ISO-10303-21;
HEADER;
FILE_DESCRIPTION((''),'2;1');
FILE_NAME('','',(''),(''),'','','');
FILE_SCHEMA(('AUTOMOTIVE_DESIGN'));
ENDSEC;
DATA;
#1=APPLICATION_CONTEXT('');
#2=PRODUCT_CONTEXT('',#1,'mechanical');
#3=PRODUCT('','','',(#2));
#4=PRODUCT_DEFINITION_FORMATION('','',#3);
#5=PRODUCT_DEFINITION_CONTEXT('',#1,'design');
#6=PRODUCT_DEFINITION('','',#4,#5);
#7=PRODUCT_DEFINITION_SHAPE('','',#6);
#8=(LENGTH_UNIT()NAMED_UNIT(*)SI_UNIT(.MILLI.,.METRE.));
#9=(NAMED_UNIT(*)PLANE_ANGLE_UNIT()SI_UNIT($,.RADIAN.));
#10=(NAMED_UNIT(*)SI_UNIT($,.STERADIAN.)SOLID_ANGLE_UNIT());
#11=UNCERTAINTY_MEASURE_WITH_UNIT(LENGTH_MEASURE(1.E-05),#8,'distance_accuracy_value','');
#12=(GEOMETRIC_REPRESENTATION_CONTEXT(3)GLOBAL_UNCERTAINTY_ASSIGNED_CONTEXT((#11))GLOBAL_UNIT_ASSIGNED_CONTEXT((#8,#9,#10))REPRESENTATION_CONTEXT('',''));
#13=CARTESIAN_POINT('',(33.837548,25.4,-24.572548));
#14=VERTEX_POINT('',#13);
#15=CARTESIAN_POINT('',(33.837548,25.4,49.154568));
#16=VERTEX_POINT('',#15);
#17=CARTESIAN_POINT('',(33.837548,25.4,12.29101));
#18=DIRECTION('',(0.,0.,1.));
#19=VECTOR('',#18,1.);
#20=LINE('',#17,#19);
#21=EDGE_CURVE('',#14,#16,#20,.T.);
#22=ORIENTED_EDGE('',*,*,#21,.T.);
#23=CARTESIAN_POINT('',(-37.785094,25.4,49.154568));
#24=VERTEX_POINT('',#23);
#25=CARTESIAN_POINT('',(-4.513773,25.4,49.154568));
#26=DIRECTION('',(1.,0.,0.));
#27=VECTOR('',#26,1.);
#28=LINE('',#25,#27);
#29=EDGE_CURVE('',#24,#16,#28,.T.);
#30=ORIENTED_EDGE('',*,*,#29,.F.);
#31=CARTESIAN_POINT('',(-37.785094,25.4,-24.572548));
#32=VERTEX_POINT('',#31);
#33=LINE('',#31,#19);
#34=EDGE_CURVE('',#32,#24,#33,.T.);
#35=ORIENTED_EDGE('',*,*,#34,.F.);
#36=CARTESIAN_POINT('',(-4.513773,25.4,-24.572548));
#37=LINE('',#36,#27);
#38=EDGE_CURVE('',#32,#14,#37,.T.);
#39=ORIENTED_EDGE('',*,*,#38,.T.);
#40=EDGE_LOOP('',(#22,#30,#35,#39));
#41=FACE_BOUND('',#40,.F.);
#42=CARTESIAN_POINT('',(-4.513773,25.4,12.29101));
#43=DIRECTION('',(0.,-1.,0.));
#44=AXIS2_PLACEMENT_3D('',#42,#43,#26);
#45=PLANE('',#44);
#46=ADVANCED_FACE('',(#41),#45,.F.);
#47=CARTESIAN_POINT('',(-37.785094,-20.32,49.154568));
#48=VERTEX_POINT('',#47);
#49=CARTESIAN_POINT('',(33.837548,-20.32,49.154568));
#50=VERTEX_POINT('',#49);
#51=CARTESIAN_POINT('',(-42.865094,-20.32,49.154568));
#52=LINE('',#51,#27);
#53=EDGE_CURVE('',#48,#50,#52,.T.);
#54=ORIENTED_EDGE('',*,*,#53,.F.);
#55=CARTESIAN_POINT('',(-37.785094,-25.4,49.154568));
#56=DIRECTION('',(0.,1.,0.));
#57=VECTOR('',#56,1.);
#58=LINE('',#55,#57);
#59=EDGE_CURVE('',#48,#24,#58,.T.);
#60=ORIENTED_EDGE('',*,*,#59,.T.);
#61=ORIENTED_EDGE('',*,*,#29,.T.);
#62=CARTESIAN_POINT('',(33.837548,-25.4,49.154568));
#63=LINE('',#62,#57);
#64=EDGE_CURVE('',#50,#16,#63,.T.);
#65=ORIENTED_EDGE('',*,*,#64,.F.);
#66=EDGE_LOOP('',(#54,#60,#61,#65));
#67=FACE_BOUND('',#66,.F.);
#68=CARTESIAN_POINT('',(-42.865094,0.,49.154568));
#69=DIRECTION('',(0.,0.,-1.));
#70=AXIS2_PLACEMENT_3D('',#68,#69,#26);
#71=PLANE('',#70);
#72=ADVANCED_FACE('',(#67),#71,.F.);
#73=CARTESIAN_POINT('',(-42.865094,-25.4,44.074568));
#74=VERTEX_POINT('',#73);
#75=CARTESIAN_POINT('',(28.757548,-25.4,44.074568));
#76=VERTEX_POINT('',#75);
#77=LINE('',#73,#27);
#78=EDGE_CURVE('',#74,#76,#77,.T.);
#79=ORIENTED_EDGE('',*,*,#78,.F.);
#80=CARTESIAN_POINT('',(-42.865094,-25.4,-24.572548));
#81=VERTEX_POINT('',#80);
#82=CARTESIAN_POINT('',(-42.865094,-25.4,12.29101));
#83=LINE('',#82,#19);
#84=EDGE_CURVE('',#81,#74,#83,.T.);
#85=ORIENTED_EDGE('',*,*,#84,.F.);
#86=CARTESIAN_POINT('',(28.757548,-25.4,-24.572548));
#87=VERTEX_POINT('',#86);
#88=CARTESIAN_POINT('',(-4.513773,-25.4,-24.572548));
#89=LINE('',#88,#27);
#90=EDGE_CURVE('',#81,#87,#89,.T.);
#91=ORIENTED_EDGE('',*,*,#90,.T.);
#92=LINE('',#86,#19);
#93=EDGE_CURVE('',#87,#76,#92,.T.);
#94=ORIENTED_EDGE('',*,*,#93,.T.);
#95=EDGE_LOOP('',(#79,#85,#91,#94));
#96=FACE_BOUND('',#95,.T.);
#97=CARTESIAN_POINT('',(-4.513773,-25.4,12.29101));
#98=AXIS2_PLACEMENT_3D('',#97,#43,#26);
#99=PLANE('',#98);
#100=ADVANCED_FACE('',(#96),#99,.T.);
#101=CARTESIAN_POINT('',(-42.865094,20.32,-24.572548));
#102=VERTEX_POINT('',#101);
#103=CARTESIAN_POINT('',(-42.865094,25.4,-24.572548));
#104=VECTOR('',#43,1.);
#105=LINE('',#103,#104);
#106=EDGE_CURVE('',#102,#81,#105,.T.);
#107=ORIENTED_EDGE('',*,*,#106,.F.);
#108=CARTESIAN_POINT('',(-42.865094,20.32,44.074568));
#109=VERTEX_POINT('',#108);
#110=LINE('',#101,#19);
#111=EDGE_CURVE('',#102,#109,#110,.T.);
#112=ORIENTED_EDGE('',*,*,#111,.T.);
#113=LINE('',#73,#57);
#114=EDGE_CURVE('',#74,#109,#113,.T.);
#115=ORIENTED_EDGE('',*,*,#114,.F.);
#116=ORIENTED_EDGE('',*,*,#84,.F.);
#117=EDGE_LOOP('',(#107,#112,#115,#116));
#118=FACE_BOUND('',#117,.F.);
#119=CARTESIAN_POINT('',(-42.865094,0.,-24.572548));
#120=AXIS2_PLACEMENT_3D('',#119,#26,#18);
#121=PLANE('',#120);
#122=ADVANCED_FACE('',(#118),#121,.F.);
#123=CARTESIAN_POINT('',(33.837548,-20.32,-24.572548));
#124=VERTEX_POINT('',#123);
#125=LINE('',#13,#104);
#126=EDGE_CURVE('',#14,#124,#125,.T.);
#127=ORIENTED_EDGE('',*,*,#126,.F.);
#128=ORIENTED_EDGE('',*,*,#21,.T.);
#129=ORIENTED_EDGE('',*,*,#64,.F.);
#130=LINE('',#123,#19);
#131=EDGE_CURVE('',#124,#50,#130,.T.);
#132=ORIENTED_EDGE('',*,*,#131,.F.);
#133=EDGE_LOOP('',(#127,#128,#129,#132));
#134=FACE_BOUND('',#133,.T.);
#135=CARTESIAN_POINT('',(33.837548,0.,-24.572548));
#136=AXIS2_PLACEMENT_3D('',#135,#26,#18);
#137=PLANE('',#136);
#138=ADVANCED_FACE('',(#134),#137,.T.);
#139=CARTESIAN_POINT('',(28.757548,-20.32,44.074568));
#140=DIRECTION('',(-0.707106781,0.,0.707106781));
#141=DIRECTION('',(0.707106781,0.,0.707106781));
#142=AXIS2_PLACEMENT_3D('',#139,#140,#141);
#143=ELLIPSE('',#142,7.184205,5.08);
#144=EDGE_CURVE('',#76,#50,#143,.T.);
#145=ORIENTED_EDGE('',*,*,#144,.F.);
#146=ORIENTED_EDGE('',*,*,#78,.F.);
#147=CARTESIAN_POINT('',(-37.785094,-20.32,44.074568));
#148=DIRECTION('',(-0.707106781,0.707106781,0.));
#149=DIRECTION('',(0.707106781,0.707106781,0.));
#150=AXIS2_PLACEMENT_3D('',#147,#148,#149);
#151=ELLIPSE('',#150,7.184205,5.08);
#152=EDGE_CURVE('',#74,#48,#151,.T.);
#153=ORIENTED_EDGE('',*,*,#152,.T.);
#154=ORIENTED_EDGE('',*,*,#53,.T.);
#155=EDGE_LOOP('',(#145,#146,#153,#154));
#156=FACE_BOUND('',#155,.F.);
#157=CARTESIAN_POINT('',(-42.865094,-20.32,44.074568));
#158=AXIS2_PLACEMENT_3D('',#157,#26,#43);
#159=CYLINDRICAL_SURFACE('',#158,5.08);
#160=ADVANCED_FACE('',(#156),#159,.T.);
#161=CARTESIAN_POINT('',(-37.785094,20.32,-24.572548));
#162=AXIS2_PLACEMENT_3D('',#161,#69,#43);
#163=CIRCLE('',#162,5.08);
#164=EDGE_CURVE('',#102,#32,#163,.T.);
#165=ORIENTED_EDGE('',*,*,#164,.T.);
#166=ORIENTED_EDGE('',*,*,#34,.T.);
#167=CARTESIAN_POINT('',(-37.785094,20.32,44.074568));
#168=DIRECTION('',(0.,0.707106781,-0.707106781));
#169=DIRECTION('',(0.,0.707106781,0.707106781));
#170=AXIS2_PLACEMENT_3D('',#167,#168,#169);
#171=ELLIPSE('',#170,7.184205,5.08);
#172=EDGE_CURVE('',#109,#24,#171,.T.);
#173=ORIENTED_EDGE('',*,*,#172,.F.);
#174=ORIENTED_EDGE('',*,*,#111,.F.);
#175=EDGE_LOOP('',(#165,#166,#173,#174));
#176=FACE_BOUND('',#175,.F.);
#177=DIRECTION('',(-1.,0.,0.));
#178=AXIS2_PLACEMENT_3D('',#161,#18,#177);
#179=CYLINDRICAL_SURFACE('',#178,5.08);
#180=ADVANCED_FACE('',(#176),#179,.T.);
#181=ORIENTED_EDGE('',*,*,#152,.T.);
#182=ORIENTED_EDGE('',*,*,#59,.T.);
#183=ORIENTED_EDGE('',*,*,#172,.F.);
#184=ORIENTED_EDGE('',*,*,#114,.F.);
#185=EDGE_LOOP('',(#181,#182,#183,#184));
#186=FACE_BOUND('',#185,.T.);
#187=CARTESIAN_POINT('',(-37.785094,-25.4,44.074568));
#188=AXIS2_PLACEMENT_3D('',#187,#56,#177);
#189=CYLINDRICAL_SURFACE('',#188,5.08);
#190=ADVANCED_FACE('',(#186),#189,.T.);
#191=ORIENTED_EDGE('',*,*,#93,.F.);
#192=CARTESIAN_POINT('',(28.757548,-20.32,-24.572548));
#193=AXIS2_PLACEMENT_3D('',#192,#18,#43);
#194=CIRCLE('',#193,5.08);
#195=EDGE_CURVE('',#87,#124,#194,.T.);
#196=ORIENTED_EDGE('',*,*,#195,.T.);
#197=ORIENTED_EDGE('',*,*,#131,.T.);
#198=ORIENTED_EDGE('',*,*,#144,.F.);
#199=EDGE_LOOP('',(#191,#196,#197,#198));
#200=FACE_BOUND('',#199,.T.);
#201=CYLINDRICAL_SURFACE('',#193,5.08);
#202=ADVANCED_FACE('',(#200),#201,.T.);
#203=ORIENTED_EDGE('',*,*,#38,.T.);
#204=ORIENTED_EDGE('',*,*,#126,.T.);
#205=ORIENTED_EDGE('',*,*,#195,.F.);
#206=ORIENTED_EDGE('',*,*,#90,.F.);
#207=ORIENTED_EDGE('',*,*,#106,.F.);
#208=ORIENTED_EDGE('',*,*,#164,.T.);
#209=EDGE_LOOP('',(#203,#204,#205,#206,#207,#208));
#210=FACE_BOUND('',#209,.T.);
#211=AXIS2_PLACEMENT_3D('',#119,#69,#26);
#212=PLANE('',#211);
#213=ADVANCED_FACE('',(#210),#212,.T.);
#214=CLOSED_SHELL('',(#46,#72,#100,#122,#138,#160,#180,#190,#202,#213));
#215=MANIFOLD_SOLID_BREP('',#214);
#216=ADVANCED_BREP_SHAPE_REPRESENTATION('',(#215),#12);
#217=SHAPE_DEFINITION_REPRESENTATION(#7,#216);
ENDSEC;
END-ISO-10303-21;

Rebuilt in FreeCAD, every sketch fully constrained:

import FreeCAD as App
import Part
import Sketcher
from FreeCAD import Vector
Q = App.Units.Quantity


def edges_at(feature, points):
    """Names of the edges that pass closest to the given points."""
    edges = feature.Shape.Edges
    near = lambda p: min(range(len(edges)), key=lambda i: edges[i].distToShape(Part.Vertex(*p))[0])
    return sorted({f"Edge{near(p) + 1}" for p in points})


def add_polygon(sketch, points):
    """Adds a closed chain of lines whose ends are joined by coincident constraints."""
    first, n = sketch.GeometryCount, len(points)
    for a, b in zip(points, points[1:] + points[:1]):
        sketch.addGeometry(Part.LineSegment(App.Vector(*a, 0), App.Vector(*b, 0)), False)
    for i in range(n):
        sketch.addConstraint(Sketcher.Constraint("Coincident", first + i, 2, first + (i + 1) % n, 1))

doc = App.newDocument("Part")
body = doc.addObject("PartDesign::Body", "Body")

# Sketch on XZ plane
sketch1 = body.newObject("Sketcher::SketchObject", "Sketch")
sketch1.AttachmentSupport = (doc.getObject("XZ_Plane"), [""])
sketch1.MapMode = "FlatFace"
add_polygon(sketch1, [(-43, 49), (-43, -25), (34, -25), (34, 49)])  # lines 0-3
sketch1.addConstraint([
    Sketcher.Constraint("Vertical", 0),
    Sketcher.Constraint("Horizontal", 1),
    Sketcher.Constraint("Vertical", 2),
    Sketcher.Constraint("Horizontal", 3),
    Sketcher.Constraint("DistanceX", 1, 1, 1, 2, 76.702643),
    Sketcher.Constraint("DistanceY", 0, 2, 0, 1, 73.727116),
    Sketcher.Constraint("DistanceY", 0, 2, -1, 1, 24.572548),
    Sketcher.Constraint("DistanceX", -1, 1, 1, 2, 33.837548),
])
pad1 = body.newObject("PartDesign::Pad", "Pad")
pad1.Profile = sketch1
pad1.Length = Q("2 in")
pad1.Midplane = True
doc.recompute()

fillet = body.newObject("PartDesign::Fillet", "Fillet")
fillet.Base = (pad1, edges_at(pad1, [
    (33.838, -25.4, 12.291),
    (-4.514, -25.4, 49.155),
    (-42.865, 0, 49.155),
    (-42.865, 25.4, 12.291),
]))
fillet.Radius = Q("0.2 in")

doc.recompute()
